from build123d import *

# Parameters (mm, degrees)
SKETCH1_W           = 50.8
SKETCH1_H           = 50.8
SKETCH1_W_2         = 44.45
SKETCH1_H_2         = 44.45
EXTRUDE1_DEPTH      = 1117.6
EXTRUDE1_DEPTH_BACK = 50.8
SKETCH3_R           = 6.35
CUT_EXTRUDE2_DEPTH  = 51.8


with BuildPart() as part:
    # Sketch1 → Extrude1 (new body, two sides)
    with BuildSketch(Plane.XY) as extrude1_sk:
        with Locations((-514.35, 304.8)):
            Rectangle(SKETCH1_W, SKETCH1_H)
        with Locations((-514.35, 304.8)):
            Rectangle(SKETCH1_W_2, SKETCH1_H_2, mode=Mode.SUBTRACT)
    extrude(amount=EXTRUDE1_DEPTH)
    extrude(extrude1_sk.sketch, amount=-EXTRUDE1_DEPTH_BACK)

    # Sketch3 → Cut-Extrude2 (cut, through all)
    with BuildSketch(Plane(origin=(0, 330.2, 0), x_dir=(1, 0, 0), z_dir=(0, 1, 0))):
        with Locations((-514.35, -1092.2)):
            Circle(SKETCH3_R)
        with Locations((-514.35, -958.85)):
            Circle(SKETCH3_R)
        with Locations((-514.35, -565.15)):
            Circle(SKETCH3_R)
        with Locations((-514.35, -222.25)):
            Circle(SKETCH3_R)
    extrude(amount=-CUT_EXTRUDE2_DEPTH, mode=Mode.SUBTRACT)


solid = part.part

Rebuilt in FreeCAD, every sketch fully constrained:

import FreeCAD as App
import Part
import Sketcher
from FreeCAD import Vector
Q = App.Units.Quantity

doc = App.newDocument("Part")
body = doc.addObject("PartDesign::Body", "Body")

# Sketch on XY plane
sketch1 = doc.addObject("Sketcher::SketchObject", "Sketch")
body.addObject(sketch1)
sketch1.AttachmentSupport = (doc.XY_Plane, [""])
sketch1.MapMode = "FlatFace"
sketch1.addGeometry(Part.LineSegment(Vector(-540, 330, 0), Vector(-540, 279, 0)), False)
sketch1.addGeometry(Part.LineSegment(Vector(-540, 279, 0), Vector(-489, 279, 0)), False)
sketch1.addGeometry(Part.LineSegment(Vector(-489, 279, 0), Vector(-489, 330, 0)), False)
sketch1.addGeometry(Part.LineSegment(Vector(-489, 330, 0), Vector(-540, 330, 0)), False)
sketch1.addGeometry(Part.LineSegment(Vector(-492, 283, 0), Vector(-537, 283, 0)), False)
sketch1.addGeometry(Part.LineSegment(Vector(-537, 283, 0), Vector(-537, 327, 0)), False)
sketch1.addGeometry(Part.LineSegment(Vector(-537, 327, 0), Vector(-492, 327, 0)), False)
sketch1.addGeometry(Part.LineSegment(Vector(-492, 327, 0), Vector(-492, 283, 0)), False)
sketch1.addConstraint(Sketcher.Constraint("Coincident", 0, 2, 1, 1))
sketch1.addConstraint(Sketcher.Constraint("Coincident", 1, 2, 2, 1))
sketch1.addConstraint(Sketcher.Constraint("Coincident", 2, 2, 3, 1))
sketch1.addConstraint(Sketcher.Constraint("Coincident", 3, 2, 0, 1))
sketch1.addConstraint(Sketcher.Constraint("Coincident", 4, 2, 5, 1))
sketch1.addConstraint(Sketcher.Constraint("Coincident", 5, 2, 6, 1))
sketch1.addConstraint(Sketcher.Constraint("Coincident", 6, 2, 7, 1))
sketch1.addConstraint(Sketcher.Constraint("Coincident", 7, 2, 4, 1))
sketch1.addConstraint(Sketcher.Constraint("Vertical", 0))
sketch1.addConstraint(Sketcher.Constraint("Horizontal", 1))
sketch1.addConstraint(Sketcher.Constraint("Vertical", 2))
sketch1.addConstraint(Sketcher.Constraint("Horizontal", 3))
sketch1.addConstraint(Sketcher.Constraint("Horizontal", 4))
sketch1.addConstraint(Sketcher.Constraint("Vertical", 5))
sketch1.addConstraint(Sketcher.Constraint("Horizontal", 6))
sketch1.addConstraint(Sketcher.Constraint("Vertical", 7))
sketch1.addConstraint(Sketcher.Constraint("Equal", 3, 0))
sketch1.addConstraint(Sketcher.Constraint("Equal", 6, 5))
sketch1.addConstraint(Sketcher.Constraint("DistanceX", 1, 1, 1, 2, Q("2 in")))
sketch1.addConstraint(Sketcher.Constraint("DistanceY", -1, 1, 0, 2, Q("11 in")))
sketch1.addConstraint(Sketcher.Constraint("DistanceX", 4, 2, 4, 1, Q("1.75 in")))
sketch1.addConstraint(Sketcher.Constraint("DistanceX", 0, 2, -1, 1, Q("21.25 in")))
sketch1.addConstraint(Sketcher.Constraint("DistanceX", 4, 2, -1, 1, Q("21.125 in")))
sketch1.addConstraint(Sketcher.Constraint("DistanceY", -1, 1, 4, 2, Q("11.125 in")))
pad1 = doc.addObject("PartDesign::Pad", "Pad")
body.addObject(pad1)
pad1.Profile = sketch1
pad1.Type = "TwoLengths"
pad1.Length = Q("44 in")
pad1.Length2 = Q("2 in")

# Sketch on XZ plane
sketch2 = doc.addObject("Sketcher::SketchObject", "Sketch001")
body.addObject(sketch2)
sketch2.AttachmentSupport = (doc.XZ_Plane, [""])
sketch2.MapMode = "FlatFace"
sketch2.AttachmentOffset = App.Placement(Vector(0, 0, -13 * 25.4), App.Rotation())
sketch2.addGeometry(Part.Circle(Vector(-514, 1092, 0), Vector(0, 0, 1), 6), False)
sketch2.addGeometry(Part.Circle(Vector(-514, 959, 0), Vector(0, 0, 1), 6), False)
sketch2.addGeometry(Part.Circle(Vector(-514, 565, 0), Vector(0, 0, 1), 6), False)
sketch2.addGeometry(Part.Circle(Vector(-514, 222, 0), Vector(0, 0, 1), 6), False)
sketch2.addConstraint(Sketcher.Constraint("Equal", 0, 1))
sketch2.addConstraint(Sketcher.Constraint("Equal", 1, 2))
sketch2.addConstraint(Sketcher.Constraint("Equal", 2, 3))
sketch2.addConstraint(Sketcher.Constraint("Vertical", 0, 3, 1, 3))
sketch2.addConstraint(Sketcher.Constraint("Vertical", 1, 3, 2, 3))
sketch2.addConstraint(Sketcher.Constraint("Vertical", 2, 3, 3, 3))
sketch2.addConstraint(Sketcher.Constraint("Diameter", 0, Q("0.5 in")))
sketch2.addConstraint(Sketcher.Constraint("DistanceY", -1, 1, 0, 3, Q("43 in")))
sketch2.addConstraint(Sketcher.Constraint("DistanceY", 3, 3, 1, 3, Q("29 in")))
sketch2.addConstraint(Sketcher.Constraint("DistanceY", 2, 3, 1, 3, Q("15.5 in")))
sketch2.addConstraint(Sketcher.Constraint("DistanceX", 0, 3, -1, 1, Q("20.25 in")))
sketch2.addConstraint(Sketcher.Constraint("DistanceY", -1, 1, 1, 3, Q("37.75 in")))
pocket1 = doc.addObject("PartDesign::Pocket", "Pocket")
body.addObject(pocket1)
pocket1.Profile = sketch2
pocket1.Type = "ThroughAll"
pocket1.Reversed = True

doc.recompute()
